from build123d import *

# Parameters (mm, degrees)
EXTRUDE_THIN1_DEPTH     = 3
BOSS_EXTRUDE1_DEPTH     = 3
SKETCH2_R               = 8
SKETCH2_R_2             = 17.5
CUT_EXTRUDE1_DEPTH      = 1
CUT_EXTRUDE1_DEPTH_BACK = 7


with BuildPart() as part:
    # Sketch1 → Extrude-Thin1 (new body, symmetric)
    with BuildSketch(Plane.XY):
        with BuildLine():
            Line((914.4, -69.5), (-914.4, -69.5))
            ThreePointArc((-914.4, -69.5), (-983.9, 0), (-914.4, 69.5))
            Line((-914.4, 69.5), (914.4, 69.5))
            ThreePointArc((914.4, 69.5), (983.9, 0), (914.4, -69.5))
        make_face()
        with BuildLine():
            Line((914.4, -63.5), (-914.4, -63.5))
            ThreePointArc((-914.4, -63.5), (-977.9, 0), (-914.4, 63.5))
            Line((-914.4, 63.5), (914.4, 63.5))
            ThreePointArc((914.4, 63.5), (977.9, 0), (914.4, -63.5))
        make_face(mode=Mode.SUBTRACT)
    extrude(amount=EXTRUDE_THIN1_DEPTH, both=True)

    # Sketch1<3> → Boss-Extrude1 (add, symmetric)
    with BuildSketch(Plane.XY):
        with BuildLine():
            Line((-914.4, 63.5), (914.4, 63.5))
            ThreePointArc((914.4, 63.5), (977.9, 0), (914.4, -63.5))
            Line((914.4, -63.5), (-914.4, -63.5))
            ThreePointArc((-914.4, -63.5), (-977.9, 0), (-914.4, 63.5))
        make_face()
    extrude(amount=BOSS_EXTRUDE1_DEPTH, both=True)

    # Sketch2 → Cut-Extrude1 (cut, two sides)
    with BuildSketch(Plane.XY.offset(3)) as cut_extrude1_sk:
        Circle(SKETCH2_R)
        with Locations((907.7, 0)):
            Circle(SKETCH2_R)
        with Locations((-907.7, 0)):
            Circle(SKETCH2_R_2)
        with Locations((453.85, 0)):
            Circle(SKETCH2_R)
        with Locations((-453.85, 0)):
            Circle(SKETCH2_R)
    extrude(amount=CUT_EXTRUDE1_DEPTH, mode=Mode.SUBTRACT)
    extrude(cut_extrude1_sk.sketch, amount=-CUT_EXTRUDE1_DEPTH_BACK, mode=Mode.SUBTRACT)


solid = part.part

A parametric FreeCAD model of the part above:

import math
import FreeCAD as App
import Part
import Sketcher

V = App.Vector

doc = App.newDocument("Part")
body = doc.addObject("PartDesign::Body", "Body")

# Sketch on XY plane
sketch1 = body.newObject("Sketcher::SketchObject", "Sketch")
sketch1.AttachmentSupport = (doc.getObject("XY_Plane"), [""])
sketch1.MapMode = "FlatFace"
sketch1.addGeometry([
    Part.LineSegment(V(-914, -70, 0), V(914, -70, 0)),  # 0
    Part.ArcOfCircle(Part.Circle(V(914, 0, 0), V(0, 0, 1), 70), math.radians(-90), math.radians(90)),  # 1
    Part.LineSegment(V(914, 70, 0), V(-914, 70, 0)),  # 2
    Part.ArcOfCircle(Part.Circle(V(-914, 0, 0), V(0, 0, 1), 70), math.radians(90), math.radians(270)),  # 3
    Part.LineSegment(V(914, -64, 0), V(-914, -64, 0)),  # 4
    Part.ArcOfCircle(Part.Circle(V(-914, 0, 0), V(0, 0, 1), 64), math.radians(90), math.radians(270)),  # 5
    Part.LineSegment(V(-914, 64, 0), V(914, 64, 0)),  # 6
    Part.ArcOfCircle(Part.Circle(V(914, 0, 0), V(0, 0, 1), 64), math.radians(-90), math.radians(90)),  # 7
], False)
sketch1.addConstraint([
    Sketcher.Constraint("Tangent", 0, 2, 1, 1),
    Sketcher.Constraint("Tangent", 1, 2, 2, 1),
    Sketcher.Constraint("Tangent", 2, 2, 3, 1),
    Sketcher.Constraint("Tangent", 3, 2, 0, 1),
    Sketcher.Constraint("Tangent", 4, 2, 5, 2),
    Sketcher.Constraint("Tangent", 5, 1, 6, 1),
    Sketcher.Constraint("Tangent", 6, 2, 7, 2),
    Sketcher.Constraint("Tangent", 7, 1, 4, 1),
    Sketcher.Constraint("Horizontal", 0),
    Sketcher.Constraint("Horizontal", 2),
    Sketcher.Constraint("Horizontal", 4),
    Sketcher.Constraint("Horizontal", 6),
    Sketcher.Constraint("Coincident", 5, 3, 3, 3),
    Sketcher.Constraint("Symmetric", 1, 3, 3, 3, -1, 1),
    Sketcher.Constraint("Vertical", 7, 3, 0, 2),
    Sketcher.Constraint("Radius", 1, 69.5),
    Sketcher.Constraint("Radius", 5, 63.5),
    Sketcher.Constraint("DistanceX", 0, 1, 0, 2, 1828.8),
])
pad1 = body.newObject("PartDesign::Pad", "Pad")
pad1.Profile = sketch1
pad1.Length = 6
pad1.Midplane = True

# Sketch on XY plane
sketch2 = body.newObject("Sketcher::SketchObject", "Sketch001")
sketch2.AttachmentSupport = (doc.getObject("XY_Plane"), [""])
sketch2.MapMode = "FlatFace"
sketch2.addGeometry([
    Part.LineSegment(V(914, 64, 0), V(-914, 64, 0)),
    Part.ArcOfCircle(Part.Circle(V(-914, 0, 0), V(0, 0, 1), 64), math.radians(90), math.radians(270)),
    Part.LineSegment(V(-914, -64, 0), V(914, -64, 0)),
    Part.ArcOfCircle(Part.Circle(V(914, 0, 0), V(0, 0, 1), 64), math.radians(-90), math.radians(90)),
], False)
sketch2.addConstraint([
    Sketcher.Constraint("Tangent", 0, 2, 1, 1),
    Sketcher.Constraint("Tangent", 1, 2, 2, 1),
    Sketcher.Constraint("Tangent", 2, 2, 3, 1),
    Sketcher.Constraint("Tangent", 3, 2, 0, 1),
    Sketcher.Constraint("Horizontal", 0),
    Sketcher.Constraint("Horizontal", 2),
    Sketcher.Constraint("Symmetric", 1, 3, 3, 3, -1, 1),
    Sketcher.Constraint("Radius", 1, 63.5),
    Sketcher.Constraint("DistanceX", 0, 2, 0, 1, 1828.8),
])
pad2 = body.newObject("PartDesign::Pad", "Pad001")
pad2.Profile = sketch2
pad2.Length = 6
pad2.Midplane = True

# Sketch on XY plane
sketch3 = body.newObject("Sketcher::SketchObject", "Sketch002")
sketch3.AttachmentSupport = (doc.getObject("XY_Plane"), [""])
sketch3.MapMode = "FlatFace"
sketch3.AttachmentOffset = App.Placement(V(0, 0, 3), App.Rotation())
sketch3.addGeometry([
    Part.Circle(V(0, 0, 0), V(0, 0, 1), 8),  # 0
    Part.Circle(V(908, 0, 0), V(0, 0, 1), 8),  # 1
    Part.Circle(V(-908, 0, 0), V(0, 0, 1), 18),  # 2
    Part.Circle(V(454, 0, 0), V(0, 0, 1), 8),  # 3
    Part.Circle(V(-454, 0, 0), V(0, 0, 1), 8),  # 4
], False)
sketch3.addConstraint([
    Sketcher.Constraint("Coincident", 0, 3, -1, 1),
    Sketcher.Constraint("Equal", 0, 1),
    Sketcher.Constraint("Equal", 1, 3),
    Sketcher.Constraint("Equal", 3, 4),
    Sketcher.Constraint("Symmetric", 1, 3, 2, 3, -1, 1),
    Sketcher.Constraint("Symmetric", 3, 3, 4, 3, -1, 1),
    Sketcher.Constraint("PointOnObject", 1, 3, -1),
    Sketcher.Constraint("PointOnObject", 3, 3, -1),
    Sketcher.Constraint("Diameter", 0, 16.0),
    Sketcher.Constraint("Diameter", 2, 35.0),
    Sketcher.Constraint("DistanceX", -1, 1, 1, 3, 907.7),
    Sketcher.Constraint("DistanceX", 4, 3, 3, 3, 907.7),
])
pocket1 = body.newObject("PartDesign::Pocket", "Pocket")
pocket1.Profile = sketch3
pocket1.Type = "ThroughAll"
pocket1.Midplane = True

doc.recompute()
